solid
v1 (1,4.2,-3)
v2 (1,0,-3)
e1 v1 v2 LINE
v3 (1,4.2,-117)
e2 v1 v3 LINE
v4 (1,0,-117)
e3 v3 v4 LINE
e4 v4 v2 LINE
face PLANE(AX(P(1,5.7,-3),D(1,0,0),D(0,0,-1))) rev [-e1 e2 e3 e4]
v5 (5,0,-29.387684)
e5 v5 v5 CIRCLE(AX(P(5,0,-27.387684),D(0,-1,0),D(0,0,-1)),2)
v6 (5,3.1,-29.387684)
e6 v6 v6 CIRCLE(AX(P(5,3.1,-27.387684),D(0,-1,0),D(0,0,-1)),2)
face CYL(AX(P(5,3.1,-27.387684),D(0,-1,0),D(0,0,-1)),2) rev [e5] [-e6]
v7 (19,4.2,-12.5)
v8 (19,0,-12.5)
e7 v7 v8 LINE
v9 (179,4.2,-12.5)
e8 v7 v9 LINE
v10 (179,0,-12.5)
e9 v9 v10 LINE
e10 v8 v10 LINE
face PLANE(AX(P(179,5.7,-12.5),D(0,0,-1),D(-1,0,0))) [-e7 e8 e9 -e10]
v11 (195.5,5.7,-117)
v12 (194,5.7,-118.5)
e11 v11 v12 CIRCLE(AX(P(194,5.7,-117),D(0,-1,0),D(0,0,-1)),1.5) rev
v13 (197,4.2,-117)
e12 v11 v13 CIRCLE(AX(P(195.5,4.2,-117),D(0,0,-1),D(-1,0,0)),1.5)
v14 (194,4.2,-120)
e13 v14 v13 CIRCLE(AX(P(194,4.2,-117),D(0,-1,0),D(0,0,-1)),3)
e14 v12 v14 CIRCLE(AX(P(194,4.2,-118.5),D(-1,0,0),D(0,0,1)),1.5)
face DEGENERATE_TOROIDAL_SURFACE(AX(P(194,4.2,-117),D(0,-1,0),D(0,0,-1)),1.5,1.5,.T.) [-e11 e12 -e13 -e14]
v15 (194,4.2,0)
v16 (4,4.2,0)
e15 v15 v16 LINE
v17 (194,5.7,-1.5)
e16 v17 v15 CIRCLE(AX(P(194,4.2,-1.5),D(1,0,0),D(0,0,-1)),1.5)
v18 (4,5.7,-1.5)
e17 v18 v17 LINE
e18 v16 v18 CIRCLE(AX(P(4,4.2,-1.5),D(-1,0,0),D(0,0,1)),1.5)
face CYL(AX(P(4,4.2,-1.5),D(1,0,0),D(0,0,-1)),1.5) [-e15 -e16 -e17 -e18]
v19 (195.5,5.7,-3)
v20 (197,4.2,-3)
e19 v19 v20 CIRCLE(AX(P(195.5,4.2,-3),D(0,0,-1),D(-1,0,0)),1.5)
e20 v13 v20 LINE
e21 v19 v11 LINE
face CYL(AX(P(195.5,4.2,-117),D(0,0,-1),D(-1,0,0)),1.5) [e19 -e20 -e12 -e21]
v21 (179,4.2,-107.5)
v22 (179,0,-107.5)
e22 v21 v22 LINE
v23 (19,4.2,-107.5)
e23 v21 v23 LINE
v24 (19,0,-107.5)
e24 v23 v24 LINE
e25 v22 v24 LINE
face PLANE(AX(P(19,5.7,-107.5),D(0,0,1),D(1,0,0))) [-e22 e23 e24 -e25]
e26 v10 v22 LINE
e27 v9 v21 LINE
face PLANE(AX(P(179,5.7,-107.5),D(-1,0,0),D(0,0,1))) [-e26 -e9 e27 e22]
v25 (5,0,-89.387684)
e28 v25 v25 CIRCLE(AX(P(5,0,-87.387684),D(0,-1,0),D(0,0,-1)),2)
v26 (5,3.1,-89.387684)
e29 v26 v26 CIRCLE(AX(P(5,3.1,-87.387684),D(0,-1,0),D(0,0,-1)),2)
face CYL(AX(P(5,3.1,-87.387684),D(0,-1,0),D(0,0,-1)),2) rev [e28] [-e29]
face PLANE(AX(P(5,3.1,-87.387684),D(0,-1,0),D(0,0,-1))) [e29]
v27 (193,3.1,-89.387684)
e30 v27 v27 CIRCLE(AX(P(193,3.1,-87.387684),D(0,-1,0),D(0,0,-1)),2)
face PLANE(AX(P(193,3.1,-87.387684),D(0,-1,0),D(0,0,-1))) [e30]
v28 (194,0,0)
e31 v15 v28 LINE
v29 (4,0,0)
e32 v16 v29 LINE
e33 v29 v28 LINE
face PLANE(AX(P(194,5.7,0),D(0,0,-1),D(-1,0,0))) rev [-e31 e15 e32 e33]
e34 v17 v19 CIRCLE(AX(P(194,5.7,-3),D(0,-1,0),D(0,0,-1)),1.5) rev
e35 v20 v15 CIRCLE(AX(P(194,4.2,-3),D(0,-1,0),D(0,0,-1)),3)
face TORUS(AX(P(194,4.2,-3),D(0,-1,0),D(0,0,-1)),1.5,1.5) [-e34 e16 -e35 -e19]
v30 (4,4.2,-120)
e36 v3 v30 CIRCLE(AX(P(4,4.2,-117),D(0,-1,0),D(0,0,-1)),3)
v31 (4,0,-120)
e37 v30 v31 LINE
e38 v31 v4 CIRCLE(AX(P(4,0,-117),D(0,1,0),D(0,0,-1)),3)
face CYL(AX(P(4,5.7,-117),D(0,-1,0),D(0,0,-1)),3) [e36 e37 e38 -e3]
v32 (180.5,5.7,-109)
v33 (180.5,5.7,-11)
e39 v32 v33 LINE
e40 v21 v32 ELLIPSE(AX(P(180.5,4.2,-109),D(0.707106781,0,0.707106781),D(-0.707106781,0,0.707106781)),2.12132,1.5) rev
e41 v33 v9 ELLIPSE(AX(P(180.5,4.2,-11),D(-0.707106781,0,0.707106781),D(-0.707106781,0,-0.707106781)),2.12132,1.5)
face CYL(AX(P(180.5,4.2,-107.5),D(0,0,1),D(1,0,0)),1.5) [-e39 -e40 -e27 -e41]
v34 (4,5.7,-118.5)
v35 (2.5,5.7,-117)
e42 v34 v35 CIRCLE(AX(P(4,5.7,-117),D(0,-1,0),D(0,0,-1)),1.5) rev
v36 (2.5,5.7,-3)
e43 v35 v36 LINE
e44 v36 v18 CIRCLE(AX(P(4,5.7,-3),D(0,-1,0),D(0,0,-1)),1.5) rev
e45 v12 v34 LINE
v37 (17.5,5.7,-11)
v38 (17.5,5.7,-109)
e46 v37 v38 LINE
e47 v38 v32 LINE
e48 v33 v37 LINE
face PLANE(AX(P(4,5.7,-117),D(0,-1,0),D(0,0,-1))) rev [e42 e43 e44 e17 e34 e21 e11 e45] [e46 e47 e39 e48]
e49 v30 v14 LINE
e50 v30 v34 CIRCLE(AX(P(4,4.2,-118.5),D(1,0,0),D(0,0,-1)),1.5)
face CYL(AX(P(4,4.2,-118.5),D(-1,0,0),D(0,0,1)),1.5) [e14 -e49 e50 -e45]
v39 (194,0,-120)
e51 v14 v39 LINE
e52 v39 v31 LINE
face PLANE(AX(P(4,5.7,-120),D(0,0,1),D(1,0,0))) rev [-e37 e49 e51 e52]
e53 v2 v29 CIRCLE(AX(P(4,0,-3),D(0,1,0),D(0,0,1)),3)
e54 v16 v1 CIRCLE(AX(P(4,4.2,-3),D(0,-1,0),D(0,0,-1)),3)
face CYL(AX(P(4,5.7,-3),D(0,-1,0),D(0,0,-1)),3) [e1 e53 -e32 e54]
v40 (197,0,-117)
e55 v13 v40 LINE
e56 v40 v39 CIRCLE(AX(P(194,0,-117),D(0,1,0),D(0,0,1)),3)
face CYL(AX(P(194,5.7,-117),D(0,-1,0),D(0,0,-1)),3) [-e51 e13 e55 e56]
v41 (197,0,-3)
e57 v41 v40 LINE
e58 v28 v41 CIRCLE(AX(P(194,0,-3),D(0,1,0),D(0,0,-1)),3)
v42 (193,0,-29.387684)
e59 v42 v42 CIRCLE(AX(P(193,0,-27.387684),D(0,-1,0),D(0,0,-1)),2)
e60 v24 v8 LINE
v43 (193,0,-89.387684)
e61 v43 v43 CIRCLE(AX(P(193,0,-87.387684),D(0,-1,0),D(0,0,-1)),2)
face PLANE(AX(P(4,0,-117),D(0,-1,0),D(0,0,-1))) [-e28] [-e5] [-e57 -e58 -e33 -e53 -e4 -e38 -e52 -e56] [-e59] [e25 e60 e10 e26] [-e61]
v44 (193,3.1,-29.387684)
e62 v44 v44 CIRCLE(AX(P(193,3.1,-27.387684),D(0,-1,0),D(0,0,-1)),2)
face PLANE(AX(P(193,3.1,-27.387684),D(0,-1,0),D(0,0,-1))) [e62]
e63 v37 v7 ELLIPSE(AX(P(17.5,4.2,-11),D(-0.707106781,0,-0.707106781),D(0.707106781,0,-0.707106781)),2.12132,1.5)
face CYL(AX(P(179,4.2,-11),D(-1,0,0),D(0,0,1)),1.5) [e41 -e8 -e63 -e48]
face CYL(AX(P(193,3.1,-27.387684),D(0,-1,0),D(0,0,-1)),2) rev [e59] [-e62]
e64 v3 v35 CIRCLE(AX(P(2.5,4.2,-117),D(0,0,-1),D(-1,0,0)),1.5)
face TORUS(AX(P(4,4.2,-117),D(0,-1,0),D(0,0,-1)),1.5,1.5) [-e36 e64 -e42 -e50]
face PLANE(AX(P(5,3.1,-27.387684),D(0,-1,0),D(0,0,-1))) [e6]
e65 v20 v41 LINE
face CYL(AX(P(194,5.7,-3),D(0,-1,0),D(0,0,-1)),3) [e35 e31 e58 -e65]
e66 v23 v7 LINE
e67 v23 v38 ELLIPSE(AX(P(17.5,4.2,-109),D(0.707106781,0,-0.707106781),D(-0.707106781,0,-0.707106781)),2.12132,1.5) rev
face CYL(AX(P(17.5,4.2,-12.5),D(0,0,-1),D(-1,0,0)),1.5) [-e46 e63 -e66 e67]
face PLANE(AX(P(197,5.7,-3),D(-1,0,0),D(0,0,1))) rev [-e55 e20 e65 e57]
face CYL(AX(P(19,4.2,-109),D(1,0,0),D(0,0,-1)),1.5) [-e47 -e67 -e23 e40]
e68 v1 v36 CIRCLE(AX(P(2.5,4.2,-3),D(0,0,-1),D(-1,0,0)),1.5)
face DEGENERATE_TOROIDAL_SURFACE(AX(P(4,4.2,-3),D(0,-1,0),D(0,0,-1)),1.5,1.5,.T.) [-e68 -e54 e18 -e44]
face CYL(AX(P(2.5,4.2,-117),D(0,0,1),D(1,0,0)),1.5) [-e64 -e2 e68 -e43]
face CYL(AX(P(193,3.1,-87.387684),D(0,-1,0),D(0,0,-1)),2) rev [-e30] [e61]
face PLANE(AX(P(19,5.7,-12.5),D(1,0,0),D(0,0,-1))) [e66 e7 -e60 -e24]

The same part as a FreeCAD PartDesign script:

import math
import FreeCAD as App
import Part
import Sketcher
from FreeCAD import Vector
Q = App.Units.Quantity


def edges_at(feature, points):
    """Names of the edges that pass closest to the given points."""
    edges = feature.Shape.Edges
    near = lambda p: min(range(len(edges)), key=lambda i: edges[i].distToShape(Part.Vertex(*p))[0])
    return sorted({f"Edge{near(p) + 1}" for p in points})

doc = App.newDocument("Part")
body = doc.addObject("PartDesign::Body", "Body")

sketch1 = body.newObject("Sketcher::SketchObject", "Sketch")
sketch1.AttachmentSupport = (doc.getObject("XZ_Plane"), [""])
sketch1.MapMode = "FlatFace"
sketch1.addGeometry([
    Part.LineSegment(Vector(194, -120, 0), Vector(4, -120, 0)),
    Part.ArcOfCircle(Part.Circle(Vector(4, -117, 0), Vector(0, 0, 1), 3), math.radians(180), math.radians(270)),
    Part.LineSegment(Vector(1, -117, 0), Vector(1, -3, 0)),
    Part.ArcOfCircle(Part.Circle(Vector(4, -3, 0), Vector(0, 0, 1), 3), math.radians(90), math.radians(180)),
    Part.LineSegment(Vector(4, 0, 0), Vector(194, 0, 0)),
    Part.ArcOfCircle(Part.Circle(Vector(194, -3, 0), Vector(0, 0, 1), 3), math.radians(0), math.radians(90)),
    Part.LineSegment(Vector(197, -3, 0), Vector(197, -117, 0)),
    Part.ArcOfCircle(Part.Circle(Vector(194, -117, 0), Vector(0, 0, 1), 3), math.radians(-90), math.radians(0)),
    Part.LineSegment(Vector(19, -12.5, 0), Vector(19, -107.5, 0)),
    Part.LineSegment(Vector(19, -107.5, 0), Vector(179, -107.5, 0)),
    Part.LineSegment(Vector(179, -107.5, 0), Vector(179, -12.5, 0)),
    Part.LineSegment(Vector(179, -12.5, 0), Vector(19, -12.5, 0)),
], False)
sketch1.addConstraint([
    Sketcher.Constraint("Tangent", 0, 2, 1, 2),
    Sketcher.Constraint("Tangent", 1, 1, 2, 1),
    Sketcher.Constraint("Tangent", 2, 2, 3, 2),
    Sketcher.Constraint("Tangent", 3, 1, 4, 1),
    Sketcher.Constraint("Tangent", 4, 2, 5, 2),
    Sketcher.Constraint("Tangent", 5, 1, 6, 1),
    Sketcher.Constraint("Tangent", 6, 2, 7, 2),
    Sketcher.Constraint("Tangent", 7, 1, 0, 1),
    Sketcher.Constraint("Coincident", 8, 2, 9, 1),
    Sketcher.Constraint("Coincident", 9, 2, 10, 1),
    Sketcher.Constraint("Coincident", 10, 2, 11, 1),
    Sketcher.Constraint("Coincident", 11, 2, 8, 1),
    Sketcher.Constraint("Horizontal", 0),
    Sketcher.Constraint("Vertical", 2),
    Sketcher.Constraint("Horizontal", 4),
    Sketcher.Constraint("Vertical", 6),
    Sketcher.Constraint("Vertical", 8),
    Sketcher.Constraint("Horizontal", 9),
    Sketcher.Constraint("Vertical", 10),
    Sketcher.Constraint("Horizontal", 11),
    Sketcher.Constraint("Equal", 1, 3),
    Sketcher.Constraint("Equal", 3, 5),
    Sketcher.Constraint("Equal", 5, 7),
    Sketcher.Constraint("PointOnObject", 3, 1, -1),
    Sketcher.Constraint("Radius", 1, Q("3 mm")),
    Sketcher.Constraint("DistanceX", 0, 2, 0, 1, Q("190 mm")),
    Sketcher.Constraint("DistanceX", 9, 1, 9, 2, Q("160 mm")),
    Sketcher.Constraint("DistanceY", 2, 1, 2, 2, Q("114 mm")),
    Sketcher.Constraint("DistanceY", 8, 2, 8, 1, Q("95 mm")),
    Sketcher.Constraint("DistanceX", -1, 1, 1, 3, Q("4 mm")),
    Sketcher.Constraint("DistanceX", -1, 1, 8, 2, Q("19 mm")),
    Sketcher.Constraint("DistanceY", 8, 2, -1, 1, Q("107.5 mm")),
])
pad1 = body.newObject("PartDesign::Pad", "Pad")
pad1.Profile = sketch1
pad1.Length = 5.7
pad1.Reversed = True
doc.recompute()

fillet = body.newObject("PartDesign::Fillet", "Fillet")
fillet.Base = (pad1, edges_at(pad1, [
    (1.879, 5.7, -0.879),
    (99, 5.7, 0),
    (196.121, 5.7, -0.879),
    (197, 5.7, -60),
    (196.121, 5.7, -119.121),
    (99, 5.7, -120),
    (99, 5.7, -107.5),
    (19, 5.7, -60),
    (99, 5.7, -12.5),
    (179, 5.7, -60),
    (1.879, 5.7, -119.121),
    (1, 5.7, -60),
]))
fillet.Radius = 1.5

sketch2 = body.newObject("Sketcher::SketchObject", "Sketch001")
sketch2.AttachmentSupport = (doc.getObject("XZ_Plane"), [""])
sketch2.MapMode = "FlatFace"
sketch2.addGeometry([
    Part.Circle(Vector(5, -27.387684, 0), Vector(0, 0, 1), 2),
    Part.Circle(Vector(5, -87.387684, 0), Vector(0, 0, 1), 2),
    Part.Circle(Vector(193, -27.387684, 0), Vector(0, 0, 1), 2),
    Part.Circle(Vector(193, -87.387684, 0), Vector(0, 0, 1), 2),
], False)
sketch2.addConstraint([
    Sketcher.Constraint("Equal", 0, 1),
    Sketcher.Constraint("Equal", 1, 2),
    Sketcher.Constraint("Equal", 2, 3),
    Sketcher.Constraint("Horizontal", 0, 3, 2, 3),
    Sketcher.Constraint("Horizontal", 1, 3, 3, 3),
    Sketcher.Constraint("Vertical", 0, 3, 1, 3),
    Sketcher.Constraint("Vertical", 2, 3, 3, 3),
    Sketcher.Constraint("Diameter", 0, Q("4 mm")),
    Sketcher.Constraint("DistanceX", -1, 1, 0, 3, Q("5 mm")),
    Sketcher.Constraint("DistanceX", -1, 1, 2, 3, Q("193 mm")),
    Sketcher.Constraint("DistanceY", 1, 3, 0, 3, Q("60 mm")),
    Sketcher.Constraint("DistanceY", 0, 3, -1, 1, Q("27.387684 mm")),
])
pocket1 = body.newObject("PartDesign::Pocket", "Pocket")
pocket1.Profile = sketch2
pocket1.Length = 3.1

doc.recompute()
